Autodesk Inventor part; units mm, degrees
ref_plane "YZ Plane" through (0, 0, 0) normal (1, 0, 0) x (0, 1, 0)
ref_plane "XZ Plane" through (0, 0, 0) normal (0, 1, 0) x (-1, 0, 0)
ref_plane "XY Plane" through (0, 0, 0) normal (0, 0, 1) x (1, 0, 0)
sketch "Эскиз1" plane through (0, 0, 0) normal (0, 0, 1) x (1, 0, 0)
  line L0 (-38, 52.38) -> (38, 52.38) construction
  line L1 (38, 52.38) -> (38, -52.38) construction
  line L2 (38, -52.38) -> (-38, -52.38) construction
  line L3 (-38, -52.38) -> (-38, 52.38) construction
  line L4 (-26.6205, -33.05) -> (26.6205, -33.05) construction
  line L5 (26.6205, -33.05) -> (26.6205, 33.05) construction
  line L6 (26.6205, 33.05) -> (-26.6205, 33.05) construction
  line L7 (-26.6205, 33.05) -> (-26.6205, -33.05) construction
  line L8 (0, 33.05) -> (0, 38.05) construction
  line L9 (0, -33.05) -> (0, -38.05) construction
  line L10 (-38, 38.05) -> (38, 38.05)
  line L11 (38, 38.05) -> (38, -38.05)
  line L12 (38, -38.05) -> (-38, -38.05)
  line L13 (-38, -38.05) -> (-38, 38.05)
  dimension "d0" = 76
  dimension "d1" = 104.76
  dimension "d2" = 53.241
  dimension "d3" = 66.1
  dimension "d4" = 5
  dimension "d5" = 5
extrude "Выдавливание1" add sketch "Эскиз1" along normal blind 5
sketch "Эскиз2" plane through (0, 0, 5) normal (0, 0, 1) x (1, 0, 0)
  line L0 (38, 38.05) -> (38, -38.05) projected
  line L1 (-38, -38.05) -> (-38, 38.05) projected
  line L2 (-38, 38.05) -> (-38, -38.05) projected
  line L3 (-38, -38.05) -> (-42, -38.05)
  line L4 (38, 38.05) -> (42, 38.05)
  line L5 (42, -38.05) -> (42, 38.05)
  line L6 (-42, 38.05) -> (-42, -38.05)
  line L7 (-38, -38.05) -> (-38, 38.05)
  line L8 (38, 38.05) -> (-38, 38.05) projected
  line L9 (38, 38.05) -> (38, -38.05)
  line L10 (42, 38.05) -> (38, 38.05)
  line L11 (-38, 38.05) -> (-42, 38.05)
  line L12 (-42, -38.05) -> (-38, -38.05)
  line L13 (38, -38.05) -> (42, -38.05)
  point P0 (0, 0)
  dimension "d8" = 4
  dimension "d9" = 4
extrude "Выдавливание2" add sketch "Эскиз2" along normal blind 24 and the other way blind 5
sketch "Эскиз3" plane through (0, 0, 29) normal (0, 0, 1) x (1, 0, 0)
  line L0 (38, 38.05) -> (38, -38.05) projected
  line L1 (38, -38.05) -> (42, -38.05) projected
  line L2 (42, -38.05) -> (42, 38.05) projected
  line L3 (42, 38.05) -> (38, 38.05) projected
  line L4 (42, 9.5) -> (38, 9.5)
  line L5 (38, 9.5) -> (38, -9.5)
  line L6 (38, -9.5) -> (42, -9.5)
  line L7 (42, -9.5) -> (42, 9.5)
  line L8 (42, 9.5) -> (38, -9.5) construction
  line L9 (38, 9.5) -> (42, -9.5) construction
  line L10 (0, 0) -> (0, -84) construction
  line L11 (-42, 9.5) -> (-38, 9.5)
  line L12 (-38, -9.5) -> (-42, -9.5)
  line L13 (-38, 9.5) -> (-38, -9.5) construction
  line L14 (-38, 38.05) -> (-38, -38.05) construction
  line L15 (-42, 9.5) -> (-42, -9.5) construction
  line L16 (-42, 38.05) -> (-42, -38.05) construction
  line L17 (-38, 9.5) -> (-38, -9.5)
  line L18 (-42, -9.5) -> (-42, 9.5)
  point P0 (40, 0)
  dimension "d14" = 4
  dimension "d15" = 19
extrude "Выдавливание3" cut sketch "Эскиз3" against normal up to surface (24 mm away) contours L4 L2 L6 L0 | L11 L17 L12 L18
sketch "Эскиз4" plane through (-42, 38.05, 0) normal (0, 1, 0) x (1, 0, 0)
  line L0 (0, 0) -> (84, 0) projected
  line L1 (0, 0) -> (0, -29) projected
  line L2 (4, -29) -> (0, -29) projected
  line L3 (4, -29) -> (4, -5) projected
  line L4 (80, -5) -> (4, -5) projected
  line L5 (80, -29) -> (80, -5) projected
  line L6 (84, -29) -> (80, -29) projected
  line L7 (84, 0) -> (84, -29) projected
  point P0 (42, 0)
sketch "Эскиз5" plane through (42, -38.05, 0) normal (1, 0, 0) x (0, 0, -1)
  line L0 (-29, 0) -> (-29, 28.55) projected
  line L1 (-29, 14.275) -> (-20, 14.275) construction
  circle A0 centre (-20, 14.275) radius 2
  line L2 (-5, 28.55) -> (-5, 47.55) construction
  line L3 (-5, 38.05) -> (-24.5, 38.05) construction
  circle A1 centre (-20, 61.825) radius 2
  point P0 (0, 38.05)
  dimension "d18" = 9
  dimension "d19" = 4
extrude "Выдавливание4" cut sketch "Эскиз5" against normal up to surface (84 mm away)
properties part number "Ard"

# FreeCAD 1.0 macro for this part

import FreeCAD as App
import Part
import Sketcher
from FreeCAD import Vector


def add_polygon(sketch, points):
    """Adds a closed chain of lines whose ends are joined by coincident constraints."""
    first, n = sketch.GeometryCount, len(points)
    for a, b in zip(points, points[1:] + points[:1]):
        sketch.addGeometry(Part.LineSegment(App.Vector(*a, 0), App.Vector(*b, 0)), False)
    for i in range(n):
        sketch.addConstraint(Sketcher.Constraint("Coincident", first + i, 2, first + (i + 1) % n, 1))

doc = App.newDocument("Part")
params = doc.addObject("Spreadsheet::Sheet", "Params")
for row, (alias, value) in enumerate([
    ("sketch1_width", "76 mm"),
    ("sketch1_height", "76.1 mm"),
    ("pad1_length", "5 mm"),
    ("sketch2_width", "4 mm"),
    ("sketch2_height", "76.1 mm"),
    ("pad2_length", "24 mm"),
    ("pad2_length2", "5 mm"),
    ("sketch3_width", "4 mm"),
    ("sketch3_height", "19 mm"),
    ("pocket1_length", "24 mm"),
    ("sketch4_diameter", "4 mm"),
    ("pocket2_length", "84 mm"),
], start=1):
    params.set(f"A{row}", alias)
    params.set(f"B{row}", "=" + value)
    params.setAlias(f"B{row}", alias)

body = doc.addObject("PartDesign::Body", "Body")

sketch1 = doc.addObject("Sketcher::SketchObject", "Sketch")
body.addObject(sketch1)
sketch1.AttachmentSupport = (doc.XY_Plane, [""])
sketch1.MapMode = "FlatFace"
add_polygon(sketch1, [(38, 38), (-38, 38), (-38, -38), (38, -38)])
sketch1.addConstraint(Sketcher.Constraint("Horizontal", 0))
sketch1.addConstraint(Sketcher.Constraint("Vertical", 1))
sketch1.addConstraint(Sketcher.Constraint("Horizontal", 2))
sketch1.addConstraint(Sketcher.Constraint("Vertical", 3))
sketch1.addConstraint(Sketcher.Constraint("Symmetric", 0, 2, 2, 2, -1, 1))
sketch1.addConstraint(Sketcher.Constraint("DistanceX", 0, 2, 0, 1, 76.0))
sketch1.addConstraint(Sketcher.Constraint("DistanceY", 1, 2, 1, 1, 76.1))
sketch1.setExpression("Constraints[9]", "Params.sketch1_width")
sketch1.setExpression("Constraints[10]", "Params.sketch1_height")
pad1 = doc.addObject("PartDesign::Pad", "Pad")
body.addObject(pad1)
pad1.Profile = sketch1
pad1.setExpression("Length", "Params.pad1_length")

sketch2 = doc.addObject("Sketcher::SketchObject", "Sketch001")
body.addObject(sketch2)
sketch2.AttachmentSupport = (doc.XY_Plane, [""])
sketch2.MapMode = "FlatFace"
sketch2.AttachmentOffset = App.Placement(Vector(0, 0, 5), App.Rotation())
add_polygon(sketch2, [(42, 38), (38, 38), (38, -38), (42, -38)])
add_polygon(sketch2, [(-38, -38), (-38, 38), (-42, 38), (-42, -38)])
sketch2.addConstraint(Sketcher.Constraint("Horizontal", 0))
sketch2.addConstraint(Sketcher.Constraint("Vertical", 1))
sketch2.addConstraint(Sketcher.Constraint("Horizontal", 2))
sketch2.addConstraint(Sketcher.Constraint("Vertical", 3))
sketch2.addConstraint(Sketcher.Constraint("Vertical", 4))
sketch2.addConstraint(Sketcher.Constraint("Horizontal", 5))
sketch2.addConstraint(Sketcher.Constraint("Vertical", 6))
sketch2.addConstraint(Sketcher.Constraint("Horizontal", 7))
sketch2.addConstraint(Sketcher.Constraint("Symmetric", 1, 2, 4, 2, -1, 1))
sketch2.addConstraint(Sketcher.Constraint("Symmetric", 3, 2, 6, 2, -1, 1))
sketch2.addConstraint(Sketcher.Constraint("Horizontal", 3, 2, 4, 2))
sketch2.addConstraint(Sketcher.Constraint("DistanceX", 0, 2, 0, 1, 4.0))
sketch2.addConstraint(Sketcher.Constraint("DistanceY", 1, 2, 1, 1, 76.1))
sketch2.addConstraint(Sketcher.Constraint("DistanceX", -1, 1, 0, 2, 38.0))
sketch2.setExpression("Constraints[19]", "Params.sketch2_width")
sketch2.setExpression("Constraints[20]", "Params.sketch2_height")
pad2 = doc.addObject("PartDesign::Pad", "Pad001")
body.addObject(pad2)
pad2.Profile = sketch2
pad2.Type = "TwoLengths"
pad2.setExpression("Length", "Params.pad2_length")
pad2.setExpression("Length2", "Params.pad2_length2")

sketch3 = doc.addObject("Sketcher::SketchObject", "Sketch002")
body.addObject(sketch3)
sketch3.AttachmentSupport = (doc.XY_Plane, [""])
sketch3.MapMode = "FlatFace"
sketch3.AttachmentOffset = App.Placement(Vector(0, 0, 29), App.Rotation())
add_polygon(sketch3, [(42, 9.5), (38, 9.5), (38, -9.5), (42, -9.5)])
add_polygon(sketch3, [(-38, 9.5), (-42, 9.5), (-42, -9.5), (-38, -9.5)])
sketch3.addConstraint(Sketcher.Constraint("Horizontal", 0))
sketch3.addConstraint(Sketcher.Constraint("Vertical", 1))
sketch3.addConstraint(Sketcher.Constraint("Horizontal", 2))
sketch3.addConstraint(Sketcher.Constraint("Vertical", 3))
sketch3.addConstraint(Sketcher.Constraint("Horizontal", 4))
sketch3.addConstraint(Sketcher.Constraint("Vertical", 5))
sketch3.addConstraint(Sketcher.Constraint("Horizontal", 6))
sketch3.addConstraint(Sketcher.Constraint("Vertical", 7))
sketch3.addConstraint(Sketcher.Constraint("Symmetric", 2, 2, 4, 2, -1, 1))
sketch3.addConstraint(Sketcher.Constraint("Symmetric", 0, 2, 6, 2, -1, 1))
sketch3.addConstraint(Sketcher.Constraint("Horizontal", 3, 2, 4, 2))
sketch3.addConstraint(Sketcher.Constraint("DistanceX", 0, 2, 0, 1, 4.0))
sketch3.addConstraint(Sketcher.Constraint("DistanceY", 1, 2, 1, 1, 19.0))
sketch3.addConstraint(Sketcher.Constraint("DistanceX", -1, 1, 0, 2, 38.0))
sketch3.setExpression("Constraints[19]", "Params.sketch3_width")
sketch3.setExpression("Constraints[20]", "Params.sketch3_height")
pocket1 = doc.addObject("PartDesign::Pocket", "Pocket")
body.addObject(pocket1)
pocket1.Profile = sketch3
pocket1.setExpression("Length", "Params.pocket1_length")

sketch4 = doc.addObject("Sketcher::SketchObject", "Sketch003")
body.addObject(sketch4)
sketch4.AttachmentSupport = (doc.YZ_Plane, [""])
sketch4.MapMode = "FlatFace"
sketch4.AttachmentOffset = App.Placement(Vector(0, 0, 42), App.Rotation())
sketch4.addGeometry(Part.Circle(Vector(-23.8, 20, 0), Vector(0, 0, 1), 2), False)
sketch4.addGeometry(Part.Circle(Vector(23.8, 20, 0), Vector(0, 0, 1), 2), False)
sketch4.addConstraint(Sketcher.Constraint("Equal", 0, 1))
sketch4.addConstraint(Sketcher.Constraint("Symmetric", 0, 3, 1, 3, -2))
sketch4.addConstraint(Sketcher.Constraint("Diameter", 0, 4.0))
sketch4.addConstraint(Sketcher.Constraint("DistanceY", -1, 1, 0, 3, 20.0))
sketch4.addConstraint(Sketcher.Constraint("DistanceX", 0, 3, 1, 3, 47.55))
sketch4.setExpression("Constraints[2]", "Params.sketch4_diameter")
pocket2 = doc.addObject("PartDesign::Pocket", "Pocket001")
body.addObject(pocket2)
pocket2.Profile = sketch4
pocket2.setExpression("Length", "Params.pocket2_length")

doc.recompute()
